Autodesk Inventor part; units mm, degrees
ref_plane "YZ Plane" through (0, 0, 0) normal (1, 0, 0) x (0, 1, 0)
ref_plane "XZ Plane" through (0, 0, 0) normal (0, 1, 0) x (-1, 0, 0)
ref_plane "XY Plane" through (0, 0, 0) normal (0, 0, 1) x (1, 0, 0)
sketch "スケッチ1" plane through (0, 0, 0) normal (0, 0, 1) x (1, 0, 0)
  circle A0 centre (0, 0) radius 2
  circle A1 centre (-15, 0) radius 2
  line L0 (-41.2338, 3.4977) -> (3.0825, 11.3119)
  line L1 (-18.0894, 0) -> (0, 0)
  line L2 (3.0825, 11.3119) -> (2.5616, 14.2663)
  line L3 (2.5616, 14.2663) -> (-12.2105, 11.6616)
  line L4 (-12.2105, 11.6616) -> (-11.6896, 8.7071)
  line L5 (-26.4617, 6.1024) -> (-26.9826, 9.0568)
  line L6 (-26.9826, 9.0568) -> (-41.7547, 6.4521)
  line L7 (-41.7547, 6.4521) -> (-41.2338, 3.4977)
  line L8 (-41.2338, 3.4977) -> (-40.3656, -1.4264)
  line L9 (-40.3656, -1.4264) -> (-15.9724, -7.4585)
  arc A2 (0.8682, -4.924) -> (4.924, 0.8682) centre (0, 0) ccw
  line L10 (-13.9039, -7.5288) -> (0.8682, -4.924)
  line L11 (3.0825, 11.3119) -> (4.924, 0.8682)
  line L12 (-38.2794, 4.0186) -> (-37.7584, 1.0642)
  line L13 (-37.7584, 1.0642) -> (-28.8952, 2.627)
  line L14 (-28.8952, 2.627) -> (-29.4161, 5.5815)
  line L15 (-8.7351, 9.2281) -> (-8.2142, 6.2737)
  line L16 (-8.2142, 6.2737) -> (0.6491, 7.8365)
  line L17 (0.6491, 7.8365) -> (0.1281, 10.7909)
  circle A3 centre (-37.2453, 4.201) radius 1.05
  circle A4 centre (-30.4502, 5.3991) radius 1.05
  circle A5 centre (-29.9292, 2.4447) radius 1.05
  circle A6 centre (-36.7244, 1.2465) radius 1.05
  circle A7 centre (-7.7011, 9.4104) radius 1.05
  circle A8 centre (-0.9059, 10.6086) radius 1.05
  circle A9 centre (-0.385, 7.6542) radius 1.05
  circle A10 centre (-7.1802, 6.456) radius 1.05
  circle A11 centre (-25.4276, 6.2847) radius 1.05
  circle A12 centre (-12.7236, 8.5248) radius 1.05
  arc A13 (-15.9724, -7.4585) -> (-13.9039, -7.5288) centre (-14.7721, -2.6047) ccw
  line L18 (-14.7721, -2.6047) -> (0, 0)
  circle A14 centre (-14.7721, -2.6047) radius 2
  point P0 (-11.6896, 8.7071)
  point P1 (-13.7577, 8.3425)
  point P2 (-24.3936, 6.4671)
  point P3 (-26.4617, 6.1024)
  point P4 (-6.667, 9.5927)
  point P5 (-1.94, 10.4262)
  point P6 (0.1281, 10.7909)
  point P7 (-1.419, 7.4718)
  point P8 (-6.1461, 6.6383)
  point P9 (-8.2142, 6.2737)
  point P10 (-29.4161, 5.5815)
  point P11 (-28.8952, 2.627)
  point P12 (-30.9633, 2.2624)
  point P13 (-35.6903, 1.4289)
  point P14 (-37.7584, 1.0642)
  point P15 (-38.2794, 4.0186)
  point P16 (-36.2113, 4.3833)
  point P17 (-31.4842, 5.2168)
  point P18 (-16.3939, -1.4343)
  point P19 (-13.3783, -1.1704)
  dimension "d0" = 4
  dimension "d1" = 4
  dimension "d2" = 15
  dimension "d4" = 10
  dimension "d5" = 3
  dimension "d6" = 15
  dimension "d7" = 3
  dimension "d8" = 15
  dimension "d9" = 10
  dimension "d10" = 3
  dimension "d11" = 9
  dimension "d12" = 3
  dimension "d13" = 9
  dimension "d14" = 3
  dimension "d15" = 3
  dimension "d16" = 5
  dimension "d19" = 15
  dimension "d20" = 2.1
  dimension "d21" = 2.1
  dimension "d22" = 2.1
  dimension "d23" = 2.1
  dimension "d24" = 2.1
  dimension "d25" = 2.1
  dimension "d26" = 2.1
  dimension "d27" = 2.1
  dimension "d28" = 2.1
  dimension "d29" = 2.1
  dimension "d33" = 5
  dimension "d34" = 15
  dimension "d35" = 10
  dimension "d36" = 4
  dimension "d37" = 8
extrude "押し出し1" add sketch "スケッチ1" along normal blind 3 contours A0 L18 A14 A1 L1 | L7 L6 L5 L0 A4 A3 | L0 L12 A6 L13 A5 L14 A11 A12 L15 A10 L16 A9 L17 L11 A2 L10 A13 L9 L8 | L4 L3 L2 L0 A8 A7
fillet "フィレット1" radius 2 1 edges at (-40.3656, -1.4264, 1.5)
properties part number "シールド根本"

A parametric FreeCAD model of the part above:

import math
import FreeCAD as App
import Part
import Sketcher
Q = App.Units.Quantity


def edges_at(feature, points):
    """Names of the edges that pass closest to the given points."""
    edges = feature.Shape.Edges
    near = lambda p: min(range(len(edges)), key=lambda i: edges[i].distToShape(Part.Vertex(*p))[0])
    return sorted({f"Edge{near(p) + 1}" for p in points})

doc = App.newDocument("Part")
body = doc.addObject("PartDesign::Body", "Body")

# Sketch on XY plane
sketch1 = body.newObject("Sketcher::SketchObject", "Sketch")
sketch1.AttachmentSupport = (doc.getObject("XY_Plane"), [""])
sketch1.MapMode = "FlatFace"
sketch1.addGeometry([
    Part.LineSegment(App.Vector(-26.5, 6.1, 0), App.Vector(-27, 9.1, 0)),  # 0
    Part.LineSegment(App.Vector(-27, 9.1, 0), App.Vector(-41.8, 6.5, 0)),  # 1
    Part.LineSegment(App.Vector(-41.8, 6.5, 0), App.Vector(-41.2, 3.5, 0)),  # 2
    Part.LineSegment(App.Vector(-41.2, 3.5, 0), App.Vector(-40.4, -1.4, 0)),  # 3
    Part.LineSegment(App.Vector(-40.4, -1.4, 0), App.Vector(-16, -7.5, 0)),  # 4
    Part.ArcOfCircle(Part.Circle(App.Vector(-14.8, -2.6, 0), App.Vector(0, 0, 1), 5), math.radians(-104), math.radians(-80)),  # 5
    Part.LineSegment(App.Vector(-13.9, -7.5, 0), App.Vector(0.9, -4.9, 0)),  # 6
    Part.ArcOfCircle(Part.Circle(App.Vector(0, 0, 0), App.Vector(0, 0, 1), 5), math.radians(-80), math.radians(10)),  # 7
    Part.LineSegment(App.Vector(4.9, 0.9, 0), App.Vector(3.1, 11.3, 0)),  # 8
    Part.LineSegment(App.Vector(3.1, 11.3, 0), App.Vector(2.6, 14.3, 0)),  # 9
    Part.LineSegment(App.Vector(2.6, 14.3, 0), App.Vector(-12.2, 11.7, 0)),  # 10
    Part.LineSegment(App.Vector(-12.2, 11.7, 0), App.Vector(-11.7, 8.7, 0)),  # 11
    Part.ArcOfCircle(Part.Circle(App.Vector(-12.7, 8.5, 0), App.Vector(0, 0, 1), 1.1), math.radians(-170), math.radians(10)),  # 12
    Part.LineSegment(App.Vector(-13.8, 8.3, 0), App.Vector(-24.4, 6.5, 0)),  # 13
    Part.ArcOfCircle(Part.Circle(App.Vector(-25.4, 6.3, 0), App.Vector(0, 0, 1), 1.1), math.radians(-170), math.radians(10)),  # 14
    Part.Circle(App.Vector(0, 0, 0), App.Vector(0, 0, 1), 2),  # 15
    Part.ArcOfCircle(Part.Circle(App.Vector(-14.8, -2.6, 0), App.Vector(0, 0, 1), 2), math.radians(144), math.radians(406)),  # 16
    Part.ArcOfCircle(Part.Circle(App.Vector(-15, 0, 0), App.Vector(0, 0, 1), 2), math.radians(-36), math.radians(226)),  # 17
    Part.LineSegment(App.Vector(-37.8, 1.1, 0), App.Vector(-38.3, 4, 0)),  # 18
    Part.ArcOfCircle(Part.Circle(App.Vector(-37.2, 4.2, 0), App.Vector(0, 0, 1), 1.1), math.radians(10), math.radians(190)),  # 19
    Part.LineSegment(App.Vector(-36.2, 4.4, 0), App.Vector(-31.5, 5.2, 0)),  # 20
    Part.ArcOfCircle(Part.Circle(App.Vector(-30.5, 5.4, 0), App.Vector(0, 0, 1), 1.1), math.radians(10), math.radians(190)),  # 21
    Part.LineSegment(App.Vector(-29.4, 5.6, 0), App.Vector(-28.9, 2.6, 0)),  # 22
    Part.ArcOfCircle(Part.Circle(App.Vector(-29.9, 2.4, 0), App.Vector(0, 0, 1), 1.1), math.radians(-170), math.radians(10)),  # 23
    Part.LineSegment(App.Vector(-31, 2.3, 0), App.Vector(-35.7, 1.4, 0)),  # 24
    Part.ArcOfCircle(Part.Circle(App.Vector(-36.7, 1.2, 0), App.Vector(0, 0, 1), 1.1), math.radians(-170), math.radians(10)),  # 25
    Part.LineSegment(App.Vector(-8.2, 6.3, 0), App.Vector(-8.7, 9.2, 0)),  # 26
    Part.ArcOfCircle(Part.Circle(App.Vector(-7.7, 9.4, 0), App.Vector(0, 0, 1), 1.1), math.radians(10), math.radians(190)),  # 27
    Part.LineSegment(App.Vector(-6.7, 9.6, 0), App.Vector(-1.9, 10.4, 0)),  # 28
    Part.ArcOfCircle(Part.Circle(App.Vector(-0.9, 10.6, 0), App.Vector(0, 0, 1), 1.1), math.radians(10), math.radians(190)),  # 29
    Part.LineSegment(App.Vector(0.1, 10.8, 0), App.Vector(0.6, 7.8, 0)),  # 30
    Part.ArcOfCircle(Part.Circle(App.Vector(-0.4, 7.7, 0), App.Vector(0, 0, 1), 1.1), math.radians(-170), math.radians(10)),  # 31
    Part.LineSegment(App.Vector(-1.4, 7.5, 0), App.Vector(-6.1, 6.6, 0)),  # 32
    Part.ArcOfCircle(Part.Circle(App.Vector(-7.2, 6.5, 0), App.Vector(0, 0, 1), 1.1), math.radians(-170), math.radians(10)),  # 33
], False)
sketch1.addConstraint([
    Sketcher.Constraint("Coincident", 0, 2, 1, 1),
    Sketcher.Constraint("Coincident", 1, 2, 2, 1),
    Sketcher.Constraint("Coincident", 2, 2, 3, 1),
    Sketcher.Constraint("Coincident", 3, 2, 4, 1),
    Sketcher.Constraint("Tangent", 4, 2, 5, 1),
    Sketcher.Constraint("Tangent", 5, 2, 6, 1),
    Sketcher.Constraint("Tangent", 6, 2, 7, 1),
    Sketcher.Constraint("Tangent", 7, 2, 8, 1),
    Sketcher.Constraint("Coincident", 8, 2, 9, 1),
    Sketcher.Constraint("Coincident", 9, 2, 10, 1),
    Sketcher.Constraint("Coincident", 10, 2, 11, 1),
    Sketcher.Constraint("Tangent", 11, 2, 12, 2),
    Sketcher.Constraint("Coincident", 12, 1, 13, 1),
    Sketcher.Constraint("Coincident", 13, 2, 14, 2),
    Sketcher.Constraint("Tangent", 14, 1, 0, 1),
    Sketcher.Constraint("Coincident", 16, 1, 17, 2),
    Sketcher.Constraint("Coincident", 17, 1, 16, 2),
    Sketcher.Constraint("Tangent", 18, 2, 19, 2),
    Sketcher.Constraint("Coincident", 19, 1, 20, 1),
    Sketcher.Constraint("Coincident", 20, 2, 21, 2),
    Sketcher.Constraint("Tangent", 21, 1, 22, 1),
    Sketcher.Constraint("Tangent", 22, 2, 23, 2),
    Sketcher.Constraint("Coincident", 23, 1, 24, 1),
    Sketcher.Constraint("Coincident", 24, 2, 25, 2),
    Sketcher.Constraint("Tangent", 25, 1, 18, 1),
    Sketcher.Constraint("Tangent", 26, 2, 27, 2),
    Sketcher.Constraint("Coincident", 27, 1, 28, 1),
    Sketcher.Constraint("Coincident", 28, 2, 29, 2),
    Sketcher.Constraint("Tangent", 29, 1, 30, 1),
    Sketcher.Constraint("Tangent", 30, 2, 31, 2),
    Sketcher.Constraint("Coincident", 31, 1, 32, 1),
    Sketcher.Constraint("Coincident", 32, 2, 33, 2),
    Sketcher.Constraint("Tangent", 33, 1, 26, 1),
    Sketcher.Constraint("Coincident", 7, 3, -1, 1),
    Sketcher.Constraint("Coincident", 15, 3, -1, 1),
    Sketcher.Constraint("Equal", 12, 14),
    Sketcher.Constraint("Equal", 15, 16),
    Sketcher.Constraint("Equal", 16, 17),
    Sketcher.Constraint("Equal", 14, 19),
    Sketcher.Constraint("Equal", 19, 21),
    Sketcher.Constraint("Equal", 21, 23),
    Sketcher.Constraint("Equal", 23, 25),
    Sketcher.Constraint("Equal", 25, 27),
    Sketcher.Constraint("Equal", 27, 29),
    Sketcher.Constraint("Equal", 29, 31),
    Sketcher.Constraint("Equal", 31, 33),
    Sketcher.Constraint("PointOnObject", 17, 3, -1),
    Sketcher.Constraint("Perpendicular", 0, 1),
    Sketcher.Constraint("Perpendicular", 1, 2),
    Sketcher.Constraint("Parallel", 2, 3),
    Sketcher.Constraint("Perpendicular", 3, 6),
    Sketcher.Constraint("Perpendicular", 6, 8),
    Sketcher.Constraint("Parallel", 8, 9),
    Sketcher.Constraint("Perpendicular", 9, 10),
    Sketcher.Constraint("Perpendicular", 10, 11),
    Sketcher.Constraint("Perpendicular", 11, 13),
    Sketcher.Constraint("Perpendicular", 13, 18),
    Sketcher.Constraint("Perpendicular", 18, 20),
    Sketcher.Constraint("Perpendicular", 20, 22),
    Sketcher.Constraint("Perpendicular", 22, 24),
    Sketcher.Constraint("Perpendicular", 24, 26),
    Sketcher.Constraint("Perpendicular", 26, 28),
    Sketcher.Constraint("Perpendicular", 28, 30),
    Sketcher.Constraint("Perpendicular", 30, 32),
    Sketcher.Constraint("Vertical", 5, 3, 16, 3),
    Sketcher.Constraint("Equal", 0, 2),
    Sketcher.Constraint("Equal", 1, 6),
    Sketcher.Constraint("Equal", 2, 9),
    Sketcher.Constraint("Equal", 6, 10),
    Sketcher.Constraint("Equal", 9, 11),
    Sketcher.Constraint("Equal", 11, 18),
    Sketcher.Constraint("Equal", 18, 22),
    Sketcher.Constraint("Equal", 22, 26),
    Sketcher.Constraint("Equal", 24, 28),
    Sketcher.Constraint("Equal", 26, 30),
    Sketcher.Constraint("Diameter", 15, 4.0),
    Sketcher.Constraint("Radius", 7, 5.0),
    Sketcher.Constraint("Angle", 6, Q("10.0003 deg")),
    Sketcher.Constraint("Radius", 12, 1.05),
    Sketcher.Constraint("Distance", 0, 3.0),
    Sketcher.Constraint("Distance", 1, 15.0),
    Sketcher.Constraint("Distance", 3, 5.0),
    Sketcher.Constraint("DistanceX", 17, 3, -1, 1, 15.0),
    Sketcher.Constraint("Radius", 5, 5.001),
    Sketcher.Constraint("Distance", 13, 10.8),
    Sketcher.Constraint("Distance", 20, 4.8),
    Sketcher.Constraint("Angle", 4, Q("-13.8898 deg")),
    Sketcher.Constraint("DistanceX", 28, 2, -1, 1, 1.94),
    Sketcher.Constraint("DistanceY", 14, 3, 12, 3, 2.24),
    Sketcher.Constraint("DistanceY", 23, 3, 14, 3, 3.84),
    Sketcher.Constraint("DistanceY", 6, 2, 33, 3, 11.38),
    Sketcher.Constraint("DistanceX", 29, 3, 7, 2, 5.83),
    Sketcher.Constraint("DistanceX", 16, 1, 5, 2, 2.49),
    Sketcher.Constraint("DistanceY", -1, 1, 19, 3, 4.201),
    Sketcher.Constraint("DistanceX", 27, 3, -1, 1, 7.701),
    Sketcher.Constraint("DistanceY", -1, 1, 13, 2, 6.467),
    Sketcher.Constraint("DistanceX", 31, 1, -1, 1, 1.419),
    Sketcher.Constraint("DistanceX", 21, 3, 16, 3, 15.678),
    Sketcher.Constraint("DistanceX", 19, 3, 19, 1, 1.034),
    Sketcher.Constraint("DistanceX", 23, 1, 23, 3, 1.034),
])
pad1 = body.newObject("PartDesign::Pad", "Pad")
pad1.Profile = sketch1
pad1.Length = 3
doc.recompute()

fillet = body.newObject("PartDesign::Fillet", "Fillet")
fillet.Base = (pad1, edges_at(pad1, [(-40.366, -1.426, 1.5)]))
fillet.Radius = 2

doc.recompute()
